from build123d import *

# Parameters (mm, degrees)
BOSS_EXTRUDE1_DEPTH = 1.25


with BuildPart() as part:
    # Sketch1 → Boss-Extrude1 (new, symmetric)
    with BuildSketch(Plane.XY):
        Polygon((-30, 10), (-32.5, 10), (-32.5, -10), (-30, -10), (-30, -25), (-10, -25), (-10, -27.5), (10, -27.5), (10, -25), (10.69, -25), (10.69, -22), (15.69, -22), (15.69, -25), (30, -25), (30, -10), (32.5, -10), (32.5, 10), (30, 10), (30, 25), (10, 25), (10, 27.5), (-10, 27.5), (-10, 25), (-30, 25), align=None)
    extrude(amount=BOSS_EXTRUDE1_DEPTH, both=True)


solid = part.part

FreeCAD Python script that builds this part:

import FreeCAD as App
import Part
import Sketcher
Q = App.Units.Quantity


def add_polygon(sketch, points):
    """Adds a closed chain of lines whose ends are joined by coincident constraints."""
    first, n = sketch.GeometryCount, len(points)
    for a, b in zip(points, points[1:] + points[:1]):
        sketch.addGeometry(Part.LineSegment(App.Vector(*a, 0), App.Vector(*b, 0)), False)
    for i in range(n):
        sketch.addConstraint(Sketcher.Constraint("Coincident", first + i, 2, first + (i + 1) % n, 1))

doc = App.newDocument("Part")
body = doc.addObject("PartDesign::Body", "Body")

# Sketch on XY plane
sketch1 = body.newObject("Sketcher::SketchObject", "Sketch")
sketch1.AttachmentSupport = (doc.getObject("XY_Plane"), [""])
sketch1.MapMode = "FlatFace"
add_polygon(sketch1, [(-30, 10), (-32.5, 10), (-32.5, -10), (-30, -10), (-30, -25), (-10, -25), (-10, -27.5), (10, -27.5), (10, -25), (10.7, -25), (10.7, -22), (15.7, -22), (15.7, -25), (30, -25), (30, -10), (32.5, -10), (32.5, 10), (30, 10), (30, 25), (10, 25), (10, 27.5), (-10, 27.5), (-10, 25), (-30, 25)])  # lines 0-23
sketch1.addConstraint([
    Sketcher.Constraint("Horizontal", 0),
    Sketcher.Constraint("Vertical", 1),
    Sketcher.Constraint("Horizontal", 2),
    Sketcher.Constraint("Vertical", 3),
    Sketcher.Constraint("Horizontal", 4),
    Sketcher.Constraint("Vertical", 5),
    Sketcher.Constraint("Horizontal", 6),
    Sketcher.Constraint("Vertical", 7),
    Sketcher.Constraint("Horizontal", 8),
    Sketcher.Constraint("Vertical", 9),
    Sketcher.Constraint("Horizontal", 10),
    Sketcher.Constraint("Vertical", 11),
    Sketcher.Constraint("Horizontal", 12),
    Sketcher.Constraint("Vertical", 13),
    Sketcher.Constraint("Horizontal", 14),
    Sketcher.Constraint("Vertical", 15),
    Sketcher.Constraint("Horizontal", 16),
    Sketcher.Constraint("Vertical", 17),
    Sketcher.Constraint("Horizontal", 18),
    Sketcher.Constraint("Vertical", 19),
    Sketcher.Constraint("Horizontal", 20),
    Sketcher.Constraint("Vertical", 21),
    Sketcher.Constraint("Horizontal", 22),
    Sketcher.Constraint("Vertical", 23),
    Sketcher.Constraint("Symmetric", 0, 2, 14, 2, -1, 1),
    Sketcher.Constraint("Symmetric", 2, 2, 16, 2, -1, 1),
    Sketcher.Constraint("Symmetric", 4, 2, 18, 2, -1, 1),
    Sketcher.Constraint("Symmetric", 6, 2, 20, 2, -1, 1),
    Sketcher.Constraint("Symmetric", 12, 2, 22, 2, -1, 1),
    Sketcher.Constraint("Symmetric", 4, 2, 7, 2, -2),
    Sketcher.Constraint("Symmetric", 3, 2, 12, 2, -2),
    Sketcher.Constraint("Horizontal", 2, 2, 13, 2),
    Sketcher.Constraint("Equal", 4, 6),
    Sketcher.Constraint("Equal", 22, 1),
    Sketcher.Constraint("Equal", 16, 5),
    Sketcher.Constraint("DistanceX", 4, 1, 4, 2, Q("20 mm")),
    Sketcher.Constraint("DistanceX", 10, 1, 10, 2, Q("5 mm")),
    Sketcher.Constraint("DistanceY", 3, 2, 3, 1, Q("15 mm")),
    Sketcher.Constraint("DistanceY", 9, 1, 9, 2, Q("3 mm")),
    Sketcher.Constraint("DistanceX", 0, 2, 0, 1, Q("2.5 mm")),
    Sketcher.Constraint("DistanceX", 8, 1, 8, 2, Q("0.69 mm")),
])
pad1 = body.newObject("PartDesign::Pad", "Pad")
pad1.Profile = sketch1
pad1.Length = 2.5
pad1.Midplane = True

doc.recompute()
